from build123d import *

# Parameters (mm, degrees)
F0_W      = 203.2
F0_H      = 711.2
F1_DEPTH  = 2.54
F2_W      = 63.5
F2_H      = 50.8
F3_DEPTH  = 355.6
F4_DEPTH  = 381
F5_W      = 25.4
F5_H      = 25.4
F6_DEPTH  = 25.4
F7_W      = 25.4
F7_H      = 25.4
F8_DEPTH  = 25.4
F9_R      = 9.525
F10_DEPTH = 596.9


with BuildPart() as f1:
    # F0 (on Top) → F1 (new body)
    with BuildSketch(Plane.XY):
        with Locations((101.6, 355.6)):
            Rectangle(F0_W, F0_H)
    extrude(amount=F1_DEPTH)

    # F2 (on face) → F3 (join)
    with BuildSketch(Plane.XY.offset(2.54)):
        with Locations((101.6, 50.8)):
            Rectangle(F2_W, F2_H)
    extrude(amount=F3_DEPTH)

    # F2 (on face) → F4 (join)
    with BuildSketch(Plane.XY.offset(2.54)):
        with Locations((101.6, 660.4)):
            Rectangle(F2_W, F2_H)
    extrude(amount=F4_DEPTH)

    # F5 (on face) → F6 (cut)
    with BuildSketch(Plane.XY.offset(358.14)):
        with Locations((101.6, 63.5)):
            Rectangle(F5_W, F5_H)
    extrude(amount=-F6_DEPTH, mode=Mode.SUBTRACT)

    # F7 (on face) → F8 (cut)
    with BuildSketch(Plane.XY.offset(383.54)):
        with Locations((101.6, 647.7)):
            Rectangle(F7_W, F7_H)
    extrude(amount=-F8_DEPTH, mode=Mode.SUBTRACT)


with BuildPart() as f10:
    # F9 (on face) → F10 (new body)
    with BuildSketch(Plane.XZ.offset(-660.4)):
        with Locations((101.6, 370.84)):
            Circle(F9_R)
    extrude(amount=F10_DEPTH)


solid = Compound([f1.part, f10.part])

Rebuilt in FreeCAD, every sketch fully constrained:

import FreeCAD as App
import Part
import Sketcher
from FreeCAD import Vector
Q = App.Units.Quantity


def add_polygon(sketch, points):
    """Adds a closed chain of lines whose ends are joined by coincident constraints."""
    first, n = sketch.GeometryCount, len(points)
    for a, b in zip(points, points[1:] + points[:1]):
        sketch.addGeometry(Part.LineSegment(App.Vector(*a, 0), App.Vector(*b, 0)), False)
    for i in range(n):
        sketch.addConstraint(Sketcher.Constraint("Coincident", first + i, 2, first + (i + 1) % n, 1))

doc = App.newDocument("Part")
body = doc.addObject("PartDesign::Body", "Body")

# Sketch on XY plane
sketch1 = body.newObject("Sketcher::SketchObject", "Sketch")
sketch1.AttachmentSupport = (doc.getObject("XY_Plane"), [""])
sketch1.MapMode = "FlatFace"
add_polygon(sketch1, [(0, 711), (0, 0), (203, 0), (203, 711)])  # lines 0-3
sketch1.addConstraint([
    Sketcher.Constraint("Vertical", 0),
    Sketcher.Constraint("Horizontal", 1),
    Sketcher.Constraint("Vertical", 2),
    Sketcher.Constraint("Horizontal", 3),
    Sketcher.Constraint("Coincident", 0, 2, -1, 1),
    Sketcher.Constraint("DistanceX", 1, 1, 1, 2, Q("8 in")),
    Sketcher.Constraint("DistanceY", 0, 2, 0, 1, Q("28 in")),
])
pad1 = body.newObject("PartDesign::Pad", "Pad")
pad1.Profile = sketch1
pad1.Length = Q("0.1 in")

# Sketch on XY plane
sketch2 = body.newObject("Sketcher::SketchObject", "Sketch001")
sketch2.AttachmentSupport = (doc.getObject("XY_Plane"), [""])
sketch2.MapMode = "FlatFace"
sketch2.AttachmentOffset = App.Placement(Vector(0, 0, 0.1 * 25.4), App.Rotation())
add_polygon(sketch2, [(70, 76), (70, 25), (133, 25), (133, 76)])  # lines 0-3
sketch2.addConstraint([
    Sketcher.Constraint("Vertical", 0),
    Sketcher.Constraint("Horizontal", 1),
    Sketcher.Constraint("Vertical", 2),
    Sketcher.Constraint("Horizontal", 3),
    Sketcher.Constraint("DistanceY", 0, 2, 0, 1, Q("2 in")),
    Sketcher.Constraint("DistanceX", 1, 1, 1, 2, Q("2.5 in")),
    Sketcher.Constraint("DistanceY", -1, 1, 0, 2, Q("1 in")),
    Sketcher.Constraint("DistanceX", -1, 1, 0, 2, Q("2.75 in")),
])
pad2 = body.newObject("PartDesign::Pad", "Pad001")
pad2.Profile = sketch2
pad2.Length = Q("14 in")

# Sketch on XY plane
sketch3 = body.newObject("Sketcher::SketchObject", "Sketch002")
sketch3.AttachmentSupport = (doc.getObject("XY_Plane"), [""])
sketch3.MapMode = "FlatFace"
sketch3.AttachmentOffset = App.Placement(Vector(0, 0, 0.1 * 25.4), App.Rotation())
add_polygon(sketch3, [(70, 686), (70, 635), (133, 635), (133, 686)])  # lines 0-3
sketch3.addConstraint([
    Sketcher.Constraint("Vertical", 0),
    Sketcher.Constraint("Horizontal", 1),
    Sketcher.Constraint("Vertical", 2),
    Sketcher.Constraint("Horizontal", 3),
    Sketcher.Constraint("DistanceY", 0, 2, 0, 1, Q("2 in")),
    Sketcher.Constraint("DistanceX", 1, 1, 1, 2, Q("2.5 in")),
    Sketcher.Constraint("DistanceY", -1, 1, 0, 2, Q("25 in")),
    Sketcher.Constraint("DistanceX", -1, 1, 0, 2, Q("2.75 in")),
])
pad3 = body.newObject("PartDesign::Pad", "Pad002")
pad3.Profile = sketch3
pad3.Length = Q("15 in")

# Sketch on XY plane
sketch4 = body.newObject("Sketcher::SketchObject", "Sketch003")
sketch4.AttachmentSupport = (doc.getObject("XY_Plane"), [""])
sketch4.MapMode = "FlatFace"
sketch4.AttachmentOffset = App.Placement(Vector(0, 0, 14.1 * 25.4), App.Rotation())
add_polygon(sketch4, [(89, 76), (89, 51), (114, 51), (114, 76)])  # lines 0-3
sketch4.addConstraint([
    Sketcher.Constraint("Vertical", 0),
    Sketcher.Constraint("Horizontal", 1),
    Sketcher.Constraint("Vertical", 2),
    Sketcher.Constraint("Horizontal", 3),
    Sketcher.Constraint("Equal", 3, 0),
    Sketcher.Constraint("DistanceX", 1, 1, 1, 2, Q("1 in")),
    Sketcher.Constraint("DistanceY", -1, 1, 0, 2, Q("2 in")),
    Sketcher.Constraint("DistanceX", -1, 1, 0, 2, Q("3.5 in")),
])
pocket1 = body.newObject("PartDesign::Pocket", "Pocket")
pocket1.Profile = sketch4
pocket1.Length = Q("1 in")

# Sketch on XY plane
sketch5 = body.newObject("Sketcher::SketchObject", "Sketch004")
sketch5.AttachmentSupport = (doc.getObject("XY_Plane"), [""])
sketch5.MapMode = "FlatFace"
sketch5.AttachmentOffset = App.Placement(Vector(0, 0, 15.1 * 25.4), App.Rotation())
add_polygon(sketch5, [(89, 660), (89, 635), (114, 635), (114, 660)])  # lines 0-3
sketch5.addConstraint([
    Sketcher.Constraint("Vertical", 0),
    Sketcher.Constraint("Horizontal", 1),
    Sketcher.Constraint("Vertical", 2),
    Sketcher.Constraint("Horizontal", 3),
    Sketcher.Constraint("Equal", 3, 0),
    Sketcher.Constraint("DistanceX", 1, 1, 1, 2, Q("1 in")),
    Sketcher.Constraint("DistanceY", -1, 1, 0, 2, Q("25 in")),
    Sketcher.Constraint("DistanceX", -1, 1, 0, 2, Q("3.5 in")),
])
pocket2 = body.newObject("PartDesign::Pocket", "Pocket001")
pocket2.Profile = sketch5
pocket2.Length = Q("1 in")
body2 = doc.addObject("PartDesign::Body", "Body001")

# Sketch on XZ plane
sketch6 = body2.newObject("Sketcher::SketchObject", "Sketch005")
sketch6.AttachmentSupport = (doc.getObject("XZ_Plane001"), [""])
sketch6.MapMode = "FlatFace"
sketch6.AttachmentOffset = App.Placement(Vector(0, 0, -26 * 25.4), App.Rotation())
sketch6.addGeometry(Part.Circle(Vector(102, 371, 0), Vector(0, 0, 1), 10), False)
sketch6.addConstraint([
    Sketcher.Constraint("Diameter", 0, Q("0.75 in")),
    Sketcher.Constraint("DistanceX", -1, 1, 0, 3, Q("4 in")),
    Sketcher.Constraint("DistanceY", -1, 1, 0, 3, Q("14.6 in")),
])
pad4 = body2.newObject("PartDesign::Pad", "Pad003")
pad4.Profile = sketch6
pad4.Length = Q("23.5 in")

doc.recompute()
